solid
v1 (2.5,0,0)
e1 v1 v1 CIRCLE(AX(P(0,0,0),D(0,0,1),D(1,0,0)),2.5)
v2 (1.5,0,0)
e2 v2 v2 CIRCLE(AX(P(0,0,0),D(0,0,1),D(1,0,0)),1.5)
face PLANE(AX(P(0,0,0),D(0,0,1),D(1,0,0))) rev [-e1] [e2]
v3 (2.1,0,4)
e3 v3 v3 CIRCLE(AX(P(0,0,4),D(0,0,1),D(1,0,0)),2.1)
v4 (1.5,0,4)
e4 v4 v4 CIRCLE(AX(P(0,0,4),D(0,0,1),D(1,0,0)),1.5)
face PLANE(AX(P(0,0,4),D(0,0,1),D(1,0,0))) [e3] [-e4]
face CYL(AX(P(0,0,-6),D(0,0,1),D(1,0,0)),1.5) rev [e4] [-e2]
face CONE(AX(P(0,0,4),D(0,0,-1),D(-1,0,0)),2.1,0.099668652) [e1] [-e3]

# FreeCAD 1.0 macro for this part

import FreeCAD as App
import Part
import Sketcher

doc = App.newDocument("Part")
body = doc.addObject("PartDesign::Body", "Body")

# Sketch on XY plane
sketch1 = doc.addObject("Sketcher::SketchObject", "Sketch")
body.addObject(sketch1)
sketch1.AttachmentSupport = (doc.XY_Plane, [""])
sketch1.MapMode = "FlatFace"
sketch1.addGeometry(Part.Circle(App.Vector(0, 0, 0), App.Vector(0, 0, 1), 2.5), False)
sketch1.addConstraint([
    Sketcher.Constraint("Coincident", 0, 3, -1, 1),
    Sketcher.Constraint("Diameter", 0, 5.0),
])

# Sketch on XY plane
sketch2 = doc.addObject("Sketcher::SketchObject", "Sketch001")
body.addObject(sketch2)
sketch2.AttachmentSupport = (doc.XY_Plane, [""])
sketch2.MapMode = "FlatFace"
sketch2.AttachmentOffset = App.Placement(App.Vector(0, 0, 4), App.Rotation())
sketch2.addGeometry(Part.Circle(App.Vector(0, 0, 0), App.Vector(0, 0, 1), 2.1), False)
sketch2.addConstraint([
    Sketcher.Constraint("Coincident", 0, 3, -1, 1),
    Sketcher.Constraint("Diameter", 0, 4.2),
])

additiveloft = doc.addObject("PartDesign::AdditiveLoft", "AdditiveLoft")
body.addObject(additiveloft)
additiveloft.Profile = sketch1
additiveloft.Sections = [sketch2]

# Sketch on XY plane
sketch3 = doc.addObject("Sketcher::SketchObject", "Sketch002")
body.addObject(sketch3)
sketch3.AttachmentSupport = (doc.XY_Plane, [""])
sketch3.MapMode = "FlatFace"
sketch3.AttachmentOffset = App.Placement(App.Vector(0, 0, 4), App.Rotation())
sketch3.addGeometry(Part.Circle(App.Vector(0, 0, 0), App.Vector(0, 0, 1), 1.5), False)
sketch3.addConstraint([
    Sketcher.Constraint("Coincident", 0, 3, -1, 1),
    Sketcher.Constraint("Diameter", 0, 3.0),
])
pocket1 = doc.addObject("PartDesign::Pocket", "Pocket")
body.addObject(pocket1)
pocket1.Profile = sketch3
pocket1.Length = 10

doc.recompute()
